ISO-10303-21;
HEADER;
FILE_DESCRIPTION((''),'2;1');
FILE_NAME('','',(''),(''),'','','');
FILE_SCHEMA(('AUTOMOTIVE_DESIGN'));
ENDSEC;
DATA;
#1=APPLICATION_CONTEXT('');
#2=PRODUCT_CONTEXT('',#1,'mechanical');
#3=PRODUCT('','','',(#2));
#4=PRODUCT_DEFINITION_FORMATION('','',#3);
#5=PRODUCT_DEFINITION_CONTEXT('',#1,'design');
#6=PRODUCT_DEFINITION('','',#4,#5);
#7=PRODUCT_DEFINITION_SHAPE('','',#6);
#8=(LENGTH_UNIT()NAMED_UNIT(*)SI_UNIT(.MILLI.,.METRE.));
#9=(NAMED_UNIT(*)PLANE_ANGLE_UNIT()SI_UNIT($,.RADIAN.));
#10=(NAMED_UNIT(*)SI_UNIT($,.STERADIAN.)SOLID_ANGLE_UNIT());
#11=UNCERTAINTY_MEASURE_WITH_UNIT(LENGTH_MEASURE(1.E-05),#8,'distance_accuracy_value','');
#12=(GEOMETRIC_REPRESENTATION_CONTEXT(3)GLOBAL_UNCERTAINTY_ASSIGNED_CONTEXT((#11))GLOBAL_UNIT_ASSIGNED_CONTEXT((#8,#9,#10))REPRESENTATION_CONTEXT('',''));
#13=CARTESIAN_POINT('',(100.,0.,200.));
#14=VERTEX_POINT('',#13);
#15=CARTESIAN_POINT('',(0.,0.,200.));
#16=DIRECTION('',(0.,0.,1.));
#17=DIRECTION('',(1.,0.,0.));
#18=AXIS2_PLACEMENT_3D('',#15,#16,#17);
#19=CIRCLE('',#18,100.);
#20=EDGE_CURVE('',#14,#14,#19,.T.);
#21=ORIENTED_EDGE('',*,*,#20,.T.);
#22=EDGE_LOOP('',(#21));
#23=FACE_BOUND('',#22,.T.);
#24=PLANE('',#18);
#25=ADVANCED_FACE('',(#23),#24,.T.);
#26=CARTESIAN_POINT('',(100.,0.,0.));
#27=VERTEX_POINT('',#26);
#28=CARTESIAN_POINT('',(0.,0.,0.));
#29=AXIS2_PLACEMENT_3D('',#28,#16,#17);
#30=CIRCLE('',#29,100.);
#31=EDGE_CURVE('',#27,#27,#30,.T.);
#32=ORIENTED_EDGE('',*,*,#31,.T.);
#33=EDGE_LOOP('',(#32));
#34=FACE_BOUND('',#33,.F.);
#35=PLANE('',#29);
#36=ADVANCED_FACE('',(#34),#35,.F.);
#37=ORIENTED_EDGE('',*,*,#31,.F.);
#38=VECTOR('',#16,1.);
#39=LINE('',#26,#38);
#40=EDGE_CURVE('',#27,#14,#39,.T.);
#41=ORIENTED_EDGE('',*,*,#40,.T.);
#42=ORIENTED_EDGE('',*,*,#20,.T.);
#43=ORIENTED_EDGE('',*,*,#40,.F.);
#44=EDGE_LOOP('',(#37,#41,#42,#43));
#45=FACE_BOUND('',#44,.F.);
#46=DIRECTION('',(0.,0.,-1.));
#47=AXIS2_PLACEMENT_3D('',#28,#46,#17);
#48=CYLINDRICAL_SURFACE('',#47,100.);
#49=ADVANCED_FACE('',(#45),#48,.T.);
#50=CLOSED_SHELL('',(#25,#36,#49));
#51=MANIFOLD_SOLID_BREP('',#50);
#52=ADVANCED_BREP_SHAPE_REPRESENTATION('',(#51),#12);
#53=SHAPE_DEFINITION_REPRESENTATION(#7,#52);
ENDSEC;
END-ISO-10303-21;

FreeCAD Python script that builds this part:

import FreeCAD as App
import Part
import Sketcher
from FreeCAD import Vector

doc = App.newDocument("Part")
body = doc.addObject("PartDesign::Body", "Body")

# Sketch on XY plane
sketch1 = body.newObject("Sketcher::SketchObject", "Sketch")
sketch1.AttachmentSupport = (doc.getObject("XY_Plane"), [""])
sketch1.MapMode = "FlatFace"
sketch1.addGeometry(Part.Circle(Vector(0, 0, 0), Vector(0, 0, 1), 100), False)
sketch1.addConstraint(Sketcher.Constraint("Coincident", 0, 3, -1, 1))
sketch1.addConstraint(Sketcher.Constraint("Diameter", 0, 200.0))
pad1 = body.newObject("PartDesign::Pad", "Pad")
pad1.Profile = sketch1
pad1.Length = 200

doc.recompute()
